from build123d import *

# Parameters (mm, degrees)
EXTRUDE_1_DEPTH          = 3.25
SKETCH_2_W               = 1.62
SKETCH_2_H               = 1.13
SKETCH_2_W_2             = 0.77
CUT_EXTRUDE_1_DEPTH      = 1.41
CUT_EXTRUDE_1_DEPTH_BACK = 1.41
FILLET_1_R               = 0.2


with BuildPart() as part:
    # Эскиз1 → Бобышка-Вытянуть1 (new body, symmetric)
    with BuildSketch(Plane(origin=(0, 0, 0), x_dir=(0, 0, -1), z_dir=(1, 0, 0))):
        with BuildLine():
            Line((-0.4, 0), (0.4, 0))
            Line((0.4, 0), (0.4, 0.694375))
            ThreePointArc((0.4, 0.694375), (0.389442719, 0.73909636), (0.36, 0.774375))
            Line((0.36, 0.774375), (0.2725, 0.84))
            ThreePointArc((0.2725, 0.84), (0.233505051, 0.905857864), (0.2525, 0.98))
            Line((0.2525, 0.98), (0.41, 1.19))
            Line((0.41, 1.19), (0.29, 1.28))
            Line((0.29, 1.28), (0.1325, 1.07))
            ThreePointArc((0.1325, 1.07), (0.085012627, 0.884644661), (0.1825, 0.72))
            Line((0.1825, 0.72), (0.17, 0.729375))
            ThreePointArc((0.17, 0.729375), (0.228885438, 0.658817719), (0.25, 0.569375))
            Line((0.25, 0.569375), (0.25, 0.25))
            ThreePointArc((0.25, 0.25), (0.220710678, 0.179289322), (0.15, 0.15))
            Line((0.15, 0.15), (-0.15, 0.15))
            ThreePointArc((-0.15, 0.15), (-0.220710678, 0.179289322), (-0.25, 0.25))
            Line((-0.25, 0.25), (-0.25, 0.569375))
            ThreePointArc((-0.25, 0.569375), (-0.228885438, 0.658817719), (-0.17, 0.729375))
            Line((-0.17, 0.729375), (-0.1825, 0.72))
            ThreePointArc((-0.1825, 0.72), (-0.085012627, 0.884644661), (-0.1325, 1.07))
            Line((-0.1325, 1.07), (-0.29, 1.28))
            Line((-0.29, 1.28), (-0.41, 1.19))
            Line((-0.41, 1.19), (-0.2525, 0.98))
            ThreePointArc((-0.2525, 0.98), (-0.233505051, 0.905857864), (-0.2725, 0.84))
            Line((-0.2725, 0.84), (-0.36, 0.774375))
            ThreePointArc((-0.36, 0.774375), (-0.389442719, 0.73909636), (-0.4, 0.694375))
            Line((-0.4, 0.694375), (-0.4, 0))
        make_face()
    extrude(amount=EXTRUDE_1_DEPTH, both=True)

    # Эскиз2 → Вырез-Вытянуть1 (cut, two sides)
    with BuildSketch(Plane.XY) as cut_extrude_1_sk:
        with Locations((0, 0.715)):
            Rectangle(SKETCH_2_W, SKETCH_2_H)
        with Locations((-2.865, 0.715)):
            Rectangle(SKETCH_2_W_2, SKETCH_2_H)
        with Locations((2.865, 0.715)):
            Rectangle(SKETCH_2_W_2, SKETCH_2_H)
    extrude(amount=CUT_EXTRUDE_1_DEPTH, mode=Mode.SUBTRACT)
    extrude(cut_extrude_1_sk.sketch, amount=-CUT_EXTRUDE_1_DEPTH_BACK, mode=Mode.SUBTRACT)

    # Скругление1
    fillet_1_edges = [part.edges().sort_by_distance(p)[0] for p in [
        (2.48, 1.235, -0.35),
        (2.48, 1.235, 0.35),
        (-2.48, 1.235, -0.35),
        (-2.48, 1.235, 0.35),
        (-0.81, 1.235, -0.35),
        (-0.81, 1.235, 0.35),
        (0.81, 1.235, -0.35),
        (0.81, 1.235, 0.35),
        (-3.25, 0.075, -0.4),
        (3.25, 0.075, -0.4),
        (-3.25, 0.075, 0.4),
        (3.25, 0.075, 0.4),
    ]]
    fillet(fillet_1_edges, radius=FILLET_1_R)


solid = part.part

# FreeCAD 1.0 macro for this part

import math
import FreeCAD as App
import Part
import Sketcher

V = App.Vector


def edges_at(feature, points):
    """Names of the edges that pass closest to the given points."""
    edges = feature.Shape.Edges
    near = lambda p: min(range(len(edges)), key=lambda i: edges[i].distToShape(Part.Vertex(*p))[0])
    return sorted({f"Edge{near(p) + 1}" for p in points})

doc = App.newDocument("Part")
params = doc.addObject("Spreadsheet::Sheet", "Params")
for row, (alias, value) in enumerate([
    ("sketch1_radius", "0.1 mm"),
    ("sketch1_radius2", "0.2 mm"),
    ("sketch1_radius3", "0.25 mm"),
    ("sketch1_height", "0.8 mm"),
    ("sketch1_height2", "0.3 mm"),
    ("pad1_length", "6.5 mm"),
    ("sketch2_width", "1.62 mm"),
    ("sketch2_width2", "0.77 mm"),
    ("sketch2_height", "1.13 mm"),
    ("fillet_radius", "0.2 mm"),
], start=1):
    params.set(f"A{row}", alias)
    params.set(f"B{row}", "=" + value)
    params.setAlias(f"B{row}", alias)

body = doc.addObject("PartDesign::Body", "Body")

# Sketch on YZ plane
sketch1 = doc.addObject("Sketcher::SketchObject", "Sketch")
body.addObject(sketch1)
sketch1.AttachmentSupport = (doc.YZ_Plane, [""])
sketch1.MapMode = "FlatFace"
sketch1.addGeometry(Part.LineSegment(V(0, 0.4, 0), V(0, -0.4, 0)), False)
sketch1.addGeometry(Part.LineSegment(V(0, -0.4, 0), V(0.694, -0.4, 0)), False)
sketch1.addGeometry(Part.ArcOfCircle(Part.Circle(V(0.694, -0.3, 0), V(0, 0, 1), 0.1), math.radians(-90), math.radians(-37)), False)
sketch1.addGeometry(Part.LineSegment(V(0.774, -0.36, 0), V(0.84, -0.273, 0)), False)
sketch1.addGeometry(Part.ArcOfCircle(Part.Circle(V(0.92, -0.333, 0), V(0, 0, 1), 0.1), math.radians(53), math.radians(143)), False)
sketch1.addGeometry(Part.LineSegment(V(0.98, -0.253, 0), V(1.19, -0.41, 0)), False)
sketch1.addGeometry(Part.LineSegment(V(1.19, -0.41, 0), V(1.28, -0.29, 0)), False)
sketch1.addGeometry(Part.LineSegment(V(1.28, -0.29, 0), V(1.07, -0.133, 0)), False)
sketch1.addGeometry(Part.ArcOfCircle(Part.Circle(V(0.92, -0.333, 0), V(0, 0, 1), 0.25), math.radians(53), math.radians(143)), False)
sketch1.addGeometry(Part.LineSegment(V(0.72, -0.182, 0), V(0.729, -0.17, 0)), False)
sketch1.addGeometry(Part.ArcOfCircle(Part.Circle(V(0.569, -0.05, 0), V(0, 0, 1), 0.2), math.radians(-90), math.radians(-37)), False)
sketch1.addGeometry(Part.LineSegment(V(0.569, -0.25, 0), V(0.25, -0.25, 0)), False)
sketch1.addGeometry(Part.ArcOfCircle(Part.Circle(V(0.25, -0.15, 0), V(0, 0, 1), 0.1), math.radians(180), math.radians(270)), False)
sketch1.addGeometry(Part.LineSegment(V(0.15, -0.15, 0), V(0.15, 0.15, 0)), False)
sketch1.addGeometry(Part.ArcOfCircle(Part.Circle(V(0.25, 0.15, 0), V(0, 0, 1), 0.1), math.radians(90), math.radians(180)), False)
sketch1.addGeometry(Part.LineSegment(V(0.25, 0.25, 0), V(0.569, 0.25, 0)), False)
sketch1.addGeometry(Part.ArcOfCircle(Part.Circle(V(0.569, 0.05, 0), V(0, 0, 1), 0.2), math.radians(37), math.radians(90)), False)
sketch1.addGeometry(Part.LineSegment(V(0.729, 0.17, 0), V(0.72, 0.182, 0)), False)
sketch1.addGeometry(Part.ArcOfCircle(Part.Circle(V(0.92, 0.333, 0), V(0, 0, 1), 0.25), math.radians(-143), math.radians(-53)), False)
sketch1.addGeometry(Part.LineSegment(V(1.07, 0.133, 0), V(1.28, 0.29, 0)), False)
sketch1.addGeometry(Part.LineSegment(V(1.28, 0.29, 0), V(1.19, 0.41, 0)), False)
sketch1.addGeometry(Part.LineSegment(V(1.19, 0.41, 0), V(0.98, 0.253, 0)), False)
sketch1.addGeometry(Part.ArcOfCircle(Part.Circle(V(0.92, 0.333, 0), V(0, 0, 1), 0.1), math.radians(-143), math.radians(-53)), False)
sketch1.addGeometry(Part.LineSegment(V(0.84, 0.273, 0), V(0.774, 0.36, 0)), False)
sketch1.addGeometry(Part.ArcOfCircle(Part.Circle(V(0.694, 0.3, 0), V(0, 0, 1), 0.1), math.radians(37), math.radians(90)), False)
sketch1.addGeometry(Part.LineSegment(V(0.694, 0.4, 0), V(0, 0.4, 0)), False)
sketch1.addConstraint(Sketcher.Constraint("Coincident", 0, 2, 1, 1))
sketch1.addConstraint(Sketcher.Constraint("Tangent", 1, 2, 2, 1))
sketch1.addConstraint(Sketcher.Constraint("Tangent", 2, 2, 3, 1))
sketch1.addConstraint(Sketcher.Constraint("Tangent", 3, 2, 4, 2))
sketch1.addConstraint(Sketcher.Constraint("Tangent", 4, 1, 5, 1))
sketch1.addConstraint(Sketcher.Constraint("Coincident", 5, 2, 6, 1))
sketch1.addConstraint(Sketcher.Constraint("Coincident", 6, 2, 7, 1))
sketch1.addConstraint(Sketcher.Constraint("Tangent", 7, 2, 8, 1))
sketch1.addConstraint(Sketcher.Constraint("Tangent", 8, 2, 9, 1))
sketch1.addConstraint(Sketcher.Constraint("Tangent", 9, 2, 10, 2))
sketch1.addConstraint(Sketcher.Constraint("Tangent", 10, 1, 11, 1))
sketch1.addConstraint(Sketcher.Constraint("Tangent", 11, 2, 12, 2))
sketch1.addConstraint(Sketcher.Constraint("Tangent", 12, 1, 13, 1))
sketch1.addConstraint(Sketcher.Constraint("Tangent", 13, 2, 14, 2))
sketch1.addConstraint(Sketcher.Constraint("Tangent", 14, 1, 15, 1))
sketch1.addConstraint(Sketcher.Constraint("Tangent", 15, 2, 16, 2))
sketch1.addConstraint(Sketcher.Constraint("Tangent", 16, 1, 17, 1))
sketch1.addConstraint(Sketcher.Constraint("Tangent", 17, 2, 18, 1))
sketch1.addConstraint(Sketcher.Constraint("Tangent", 18, 2, 19, 1))
sketch1.addConstraint(Sketcher.Constraint("Coincident", 19, 2, 20, 1))
sketch1.addConstraint(Sketcher.Constraint("Coincident", 20, 2, 21, 1))
sketch1.addConstraint(Sketcher.Constraint("Tangent", 21, 2, 22, 2))
sketch1.addConstraint(Sketcher.Constraint("Tangent", 22, 1, 23, 1))
sketch1.addConstraint(Sketcher.Constraint("Tangent", 23, 2, 24, 1))
sketch1.addConstraint(Sketcher.Constraint("Tangent", 24, 2, 25, 1))
sketch1.addConstraint(Sketcher.Constraint("Coincident", 25, 2, 0, 1))
sketch1.addConstraint(Sketcher.Constraint("Vertical", 0))
sketch1.addConstraint(Sketcher.Constraint("Horizontal", 1))
sketch1.addConstraint(Sketcher.Constraint("Horizontal", 11))
sketch1.addConstraint(Sketcher.Constraint("Vertical", 13))
sketch1.addConstraint(Sketcher.Constraint("Horizontal", 15))
sketch1.addConstraint(Sketcher.Constraint("Horizontal", 25))
sketch1.addConstraint(Sketcher.Constraint("Coincident", 8, 3, 4, 3))
sketch1.addConstraint(Sketcher.Constraint("Coincident", 22, 3, 18, 3))
sketch1.addConstraint(Sketcher.Constraint("Equal", 2, 4))
sketch1.addConstraint(Sketcher.Constraint("Equal", 4, 12))
sketch1.addConstraint(Sketcher.Constraint("Equal", 12, 14))
sketch1.addConstraint(Sketcher.Constraint("Equal", 10, 16))
sketch1.addConstraint(Sketcher.Constraint("Equal", 8, 18))
sketch1.addConstraint(Sketcher.Constraint("Equal", 14, 22))
sketch1.addConstraint(Sketcher.Constraint("Equal", 22, 24))
sketch1.addConstraint(Sketcher.Constraint("Symmetric", 0, 2, 25, 2, -1, 1))
sketch1.addConstraint(Sketcher.Constraint("Symmetric", 10, 3, 16, 3, -1))
sketch1.addConstraint(Sketcher.Constraint("Symmetric", 4, 3, 18, 3, -1))
sketch1.addConstraint(Sketcher.Constraint("Symmetric", 6, 2, 19, 2, -1))
sketch1.addConstraint(Sketcher.Constraint("Symmetric", 5, 2, 20, 2, -1))
sketch1.addConstraint(Sketcher.Constraint("Perpendicular", 3, 5))
sketch1.addConstraint(Sketcher.Constraint("Perpendicular", 5, 6))
sketch1.addConstraint(Sketcher.Constraint("Perpendicular", 6, 7))
sketch1.addConstraint(Sketcher.Constraint("Perpendicular", 7, 9))
sketch1.addConstraint(Sketcher.Constraint("Perpendicular", 21, 23))
sketch1.addConstraint(Sketcher.Constraint("Radius", 2, 0.1))
sketch1.addConstraint(Sketcher.Constraint("Radius", 10, 0.2))
sketch1.addConstraint(Sketcher.Constraint("Radius", 8, 0.25))
sketch1.addConstraint(Sketcher.Constraint("DistanceY", 0, 2, 0, 1, 0.8))
sketch1.addConstraint(Sketcher.Constraint("DistanceY", 13, 1, 13, 2, 0.3))
sketch1.addConstraint(Sketcher.Constraint("DistanceX", 4, 1, 6, 2, 0.3))
sketch1.addConstraint(Sketcher.Constraint("DistanceY", 4, 3, 7, 2, 0.2))
sketch1.addConstraint(Sketcher.Constraint("DistanceX", -1, 1, 4, 3, 0.92))
sketch1.addConstraint(Sketcher.Constraint("DistanceX", -1, 1, 12, 3, 0.25))
sketch1.addConstraint(Sketcher.Constraint("DistanceY", 5, 2, -1, 1, 0.41))
sketch1.setExpression("Constraints[51]", "Params.sketch1_radius")
sketch1.setExpression("Constraints[52]", "Params.sketch1_radius2")
sketch1.setExpression("Constraints[53]", "Params.sketch1_radius3")
sketch1.setExpression("Constraints[54]", "Params.sketch1_height")
sketch1.setExpression("Constraints[55]", "Params.sketch1_height2")
pad1 = doc.addObject("PartDesign::Pad", "Pad")
body.addObject(pad1)
pad1.Profile = sketch1
pad1.setExpression("Length", "Params.pad1_length")
pad1.Midplane = True

# Sketch on XY plane
sketch2 = doc.addObject("Sketcher::SketchObject", "Sketch001")
body.addObject(sketch2)
sketch2.AttachmentSupport = (doc.XY_Plane, [""])
sketch2.MapMode = "FlatFace"
sketch2.addGeometry(Part.LineSegment(V(-0.8, 1.3, 0), V(-0.8, 0.1, 0)), False)
sketch2.addGeometry(Part.LineSegment(V(-0.8, 0.1, 0), V(0.8, 0.1, 0)), False)
sketch2.addGeometry(Part.LineSegment(V(0.8, 0.1, 0), V(0.8, 1.3, 0)), False)
sketch2.addGeometry(Part.LineSegment(V(0.8, 1.3, 0), V(-0.8, 1.3, 0)), False)
sketch2.addGeometry(Part.LineSegment(V(-3.2, 1.3, 0), V(-3.2, 0.1, 0)), False)
sketch2.addGeometry(Part.LineSegment(V(-3.2, 0.1, 0), V(-2.5, 0.1, 0)), False)
sketch2.addGeometry(Part.LineSegment(V(-2.5, 0.1, 0), V(-2.5, 1.3, 0)), False)
sketch2.addGeometry(Part.LineSegment(V(-2.5, 1.3, 0), V(-3.2, 1.3, 0)), False)
sketch2.addGeometry(Part.LineSegment(V(2.5, 1.3, 0), V(2.5, 0.1, 0)), False)
sketch2.addGeometry(Part.LineSegment(V(2.5, 0.1, 0), V(3.2, 0.1, 0)), False)
sketch2.addGeometry(Part.LineSegment(V(3.2, 0.1, 0), V(3.2, 1.3, 0)), False)
sketch2.addGeometry(Part.LineSegment(V(3.2, 1.3, 0), V(2.5, 1.3, 0)), False)
sketch2.addConstraint(Sketcher.Constraint("Coincident", 0, 2, 1, 1))
sketch2.addConstraint(Sketcher.Constraint("Coincident", 1, 2, 2, 1))
sketch2.addConstraint(Sketcher.Constraint("Coincident", 2, 2, 3, 1))
sketch2.addConstraint(Sketcher.Constraint("Coincident", 3, 2, 0, 1))
sketch2.addConstraint(Sketcher.Constraint("Coincident", 4, 2, 5, 1))
sketch2.addConstraint(Sketcher.Constraint("Coincident", 5, 2, 6, 1))
sketch2.addConstraint(Sketcher.Constraint("Coincident", 6, 2, 7, 1))
sketch2.addConstraint(Sketcher.Constraint("Coincident", 7, 2, 4, 1))
sketch2.addConstraint(Sketcher.Constraint("Coincident", 8, 2, 9, 1))
sketch2.addConstraint(Sketcher.Constraint("Coincident", 9, 2, 10, 1))
sketch2.addConstraint(Sketcher.Constraint("Coincident", 10, 2, 11, 1))
sketch2.addConstraint(Sketcher.Constraint("Coincident", 11, 2, 8, 1))
sketch2.addConstraint(Sketcher.Constraint("Vertical", 0))
sketch2.addConstraint(Sketcher.Constraint("Horizontal", 1))
sketch2.addConstraint(Sketcher.Constraint("Vertical", 2))
sketch2.addConstraint(Sketcher.Constraint("Horizontal", 3))
sketch2.addConstraint(Sketcher.Constraint("Vertical", 4))
sketch2.addConstraint(Sketcher.Constraint("Horizontal", 5))
sketch2.addConstraint(Sketcher.Constraint("Vertical", 6))
sketch2.addConstraint(Sketcher.Constraint("Horizontal", 7))
sketch2.addConstraint(Sketcher.Constraint("Vertical", 8))
sketch2.addConstraint(Sketcher.Constraint("Horizontal", 9))
sketch2.addConstraint(Sketcher.Constraint("Vertical", 10))
sketch2.addConstraint(Sketcher.Constraint("Horizontal", 11))
sketch2.addConstraint(Sketcher.Constraint("Symmetric", 5, 2, 8, 2, -2))
sketch2.addConstraint(Sketcher.Constraint("Symmetric", 7, 2, 10, 2, -2))
sketch2.addConstraint(Sketcher.Constraint("Horizontal", 1, 2, 4, 2))
sketch2.addConstraint(Sketcher.Constraint("Horizontal", 3, 2, 6, 2))
sketch2.addConstraint(Sketcher.Constraint("DistanceX", 1, 1, 1, 2, 1.62))
sketch2.addConstraint(Sketcher.Constraint("DistanceX", 5, 1, 5, 2, 0.77))
sketch2.addConstraint(Sketcher.Constraint("DistanceY", 0, 2, 0, 1, 1.13))
sketch2.addConstraint(Sketcher.Constraint("DistanceX", 0, 2, -1, 1, 0.81))
sketch2.addConstraint(Sketcher.Constraint("DistanceY", -1, 1, 0, 2, 0.15))
sketch2.addConstraint(Sketcher.Constraint("DistanceX", 4, 2, -1, 1, 3.25))
sketch2.setExpression("Constraints[28]", "Params.sketch2_width")
sketch2.setExpression("Constraints[29]", "Params.sketch2_width2")
sketch2.setExpression("Constraints[30]", "Params.sketch2_height")
pocket1 = doc.addObject("PartDesign::Pocket", "Pocket")
body.addObject(pocket1)
pocket1.Profile = sketch2
pocket1.Type = "ThroughAll"
pocket1.Midplane = True
doc.recompute()

fillet = doc.addObject("PartDesign::Fillet", "Fillet")
body.addObject(fillet)
fillet.Base = (pocket1, edges_at(pocket1, [
    (2.48, 1.235, -0.35),
    (2.48, 1.235, 0.35),
    (-2.48, 1.235, -0.35),
    (-2.48, 1.235, 0.35),
    (-0.81, 1.235, -0.35),
    (-0.81, 1.235, 0.35),
    (0.81, 1.235, -0.35),
    (0.81, 1.235, 0.35),
    (-3.25, 0.075, -0.4),
    (3.25, 0.075, -0.4),
    (-3.25, 0.075, 0.4),
    (3.25, 0.075, 0.4),
]))
fillet.setExpression("Radius", "Params.fillet_radius")

doc.recompute()
